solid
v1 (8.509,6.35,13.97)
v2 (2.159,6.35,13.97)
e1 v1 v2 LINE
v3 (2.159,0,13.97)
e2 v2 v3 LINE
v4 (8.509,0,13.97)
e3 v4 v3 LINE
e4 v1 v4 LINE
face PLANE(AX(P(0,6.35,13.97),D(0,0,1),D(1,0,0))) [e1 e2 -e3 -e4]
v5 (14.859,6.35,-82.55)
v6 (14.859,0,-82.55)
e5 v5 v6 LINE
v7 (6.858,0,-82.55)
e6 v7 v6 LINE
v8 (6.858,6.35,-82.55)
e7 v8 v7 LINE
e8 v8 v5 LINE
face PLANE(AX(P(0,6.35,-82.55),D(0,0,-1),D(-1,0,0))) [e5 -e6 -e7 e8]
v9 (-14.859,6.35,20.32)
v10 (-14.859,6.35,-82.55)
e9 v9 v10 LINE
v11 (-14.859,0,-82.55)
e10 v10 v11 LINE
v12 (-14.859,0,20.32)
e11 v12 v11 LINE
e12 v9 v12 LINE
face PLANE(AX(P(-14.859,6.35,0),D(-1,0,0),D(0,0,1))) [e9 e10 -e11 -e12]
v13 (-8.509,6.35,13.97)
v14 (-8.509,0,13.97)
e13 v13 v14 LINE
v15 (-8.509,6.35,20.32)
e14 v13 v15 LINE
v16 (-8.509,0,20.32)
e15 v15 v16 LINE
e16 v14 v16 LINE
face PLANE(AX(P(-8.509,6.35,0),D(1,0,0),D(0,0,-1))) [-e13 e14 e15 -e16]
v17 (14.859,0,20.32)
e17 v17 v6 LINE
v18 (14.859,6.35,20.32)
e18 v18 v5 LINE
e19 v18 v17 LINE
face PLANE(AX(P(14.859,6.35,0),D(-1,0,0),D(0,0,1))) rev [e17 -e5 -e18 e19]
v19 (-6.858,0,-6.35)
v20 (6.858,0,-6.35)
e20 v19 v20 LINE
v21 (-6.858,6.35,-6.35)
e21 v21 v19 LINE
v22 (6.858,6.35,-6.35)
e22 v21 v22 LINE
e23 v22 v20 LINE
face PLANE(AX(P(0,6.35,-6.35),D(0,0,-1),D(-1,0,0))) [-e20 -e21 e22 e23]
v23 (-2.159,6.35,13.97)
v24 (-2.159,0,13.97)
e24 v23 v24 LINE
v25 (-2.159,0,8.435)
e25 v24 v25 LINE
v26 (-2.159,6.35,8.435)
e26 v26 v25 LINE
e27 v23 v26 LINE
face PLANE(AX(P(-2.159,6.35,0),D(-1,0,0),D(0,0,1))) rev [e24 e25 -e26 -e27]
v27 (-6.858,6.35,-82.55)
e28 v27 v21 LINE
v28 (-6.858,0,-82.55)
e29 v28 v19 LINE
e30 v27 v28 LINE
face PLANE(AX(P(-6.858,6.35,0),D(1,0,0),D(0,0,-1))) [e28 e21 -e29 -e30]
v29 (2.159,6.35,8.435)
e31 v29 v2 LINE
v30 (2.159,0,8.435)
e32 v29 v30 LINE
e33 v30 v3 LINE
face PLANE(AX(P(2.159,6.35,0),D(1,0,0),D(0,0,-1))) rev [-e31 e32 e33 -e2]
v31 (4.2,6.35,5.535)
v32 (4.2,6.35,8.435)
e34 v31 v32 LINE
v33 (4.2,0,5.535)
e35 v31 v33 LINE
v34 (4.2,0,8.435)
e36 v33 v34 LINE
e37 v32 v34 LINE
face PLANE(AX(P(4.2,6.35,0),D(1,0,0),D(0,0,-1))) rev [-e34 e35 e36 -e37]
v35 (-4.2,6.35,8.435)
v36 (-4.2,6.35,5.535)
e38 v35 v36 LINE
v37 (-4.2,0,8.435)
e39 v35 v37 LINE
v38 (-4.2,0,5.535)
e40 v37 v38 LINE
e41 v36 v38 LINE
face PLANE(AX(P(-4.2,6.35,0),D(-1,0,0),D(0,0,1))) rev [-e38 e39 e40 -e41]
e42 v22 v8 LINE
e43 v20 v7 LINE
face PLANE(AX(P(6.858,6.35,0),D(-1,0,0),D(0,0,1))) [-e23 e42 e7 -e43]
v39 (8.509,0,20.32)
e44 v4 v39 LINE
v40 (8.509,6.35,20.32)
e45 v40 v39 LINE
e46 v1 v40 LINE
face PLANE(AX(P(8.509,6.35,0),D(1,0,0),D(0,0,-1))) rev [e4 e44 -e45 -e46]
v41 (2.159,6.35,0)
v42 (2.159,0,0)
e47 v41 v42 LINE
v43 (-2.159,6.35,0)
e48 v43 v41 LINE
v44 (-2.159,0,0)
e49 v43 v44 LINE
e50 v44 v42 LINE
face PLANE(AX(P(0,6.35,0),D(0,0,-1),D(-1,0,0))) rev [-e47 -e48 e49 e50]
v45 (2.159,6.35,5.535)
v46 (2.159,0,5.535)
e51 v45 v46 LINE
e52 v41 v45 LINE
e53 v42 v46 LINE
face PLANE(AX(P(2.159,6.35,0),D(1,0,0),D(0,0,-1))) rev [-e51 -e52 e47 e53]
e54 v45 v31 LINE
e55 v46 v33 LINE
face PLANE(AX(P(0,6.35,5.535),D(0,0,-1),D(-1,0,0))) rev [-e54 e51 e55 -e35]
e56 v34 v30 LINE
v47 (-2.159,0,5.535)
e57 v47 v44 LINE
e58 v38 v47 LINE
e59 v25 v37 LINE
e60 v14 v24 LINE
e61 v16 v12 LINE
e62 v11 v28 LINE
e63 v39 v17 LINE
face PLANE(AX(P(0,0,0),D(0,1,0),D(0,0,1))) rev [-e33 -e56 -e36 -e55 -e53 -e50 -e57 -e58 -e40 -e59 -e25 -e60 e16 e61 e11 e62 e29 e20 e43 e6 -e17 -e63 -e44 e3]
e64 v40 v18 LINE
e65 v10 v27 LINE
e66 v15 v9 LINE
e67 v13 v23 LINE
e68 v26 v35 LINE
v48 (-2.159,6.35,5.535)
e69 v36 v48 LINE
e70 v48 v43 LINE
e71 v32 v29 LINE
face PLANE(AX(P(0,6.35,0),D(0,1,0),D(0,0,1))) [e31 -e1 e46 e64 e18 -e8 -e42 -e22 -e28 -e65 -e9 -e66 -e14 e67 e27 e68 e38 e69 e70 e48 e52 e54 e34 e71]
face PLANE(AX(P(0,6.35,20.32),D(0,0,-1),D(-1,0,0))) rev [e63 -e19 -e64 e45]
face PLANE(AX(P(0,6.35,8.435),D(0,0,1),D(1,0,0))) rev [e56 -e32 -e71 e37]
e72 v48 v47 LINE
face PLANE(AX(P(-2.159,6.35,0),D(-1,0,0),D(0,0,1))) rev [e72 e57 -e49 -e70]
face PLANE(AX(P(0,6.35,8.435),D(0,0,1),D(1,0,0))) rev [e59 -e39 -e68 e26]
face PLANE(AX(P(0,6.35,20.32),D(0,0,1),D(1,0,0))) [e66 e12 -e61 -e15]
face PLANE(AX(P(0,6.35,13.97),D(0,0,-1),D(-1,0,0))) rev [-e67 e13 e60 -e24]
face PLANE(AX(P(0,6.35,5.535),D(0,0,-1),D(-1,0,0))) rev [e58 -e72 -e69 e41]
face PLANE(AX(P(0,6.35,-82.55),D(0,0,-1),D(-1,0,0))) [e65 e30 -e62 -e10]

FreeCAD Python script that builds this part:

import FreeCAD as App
import Part
import Sketcher
from FreeCAD import Vector
Q = App.Units.Quantity


def add_polygon(sketch, points):
    """Adds a closed chain of lines whose ends are joined by coincident constraints."""
    first, n = sketch.GeometryCount, len(points)
    for a, b in zip(points, points[1:] + points[:1]):
        sketch.addGeometry(Part.LineSegment(App.Vector(*a, 0), App.Vector(*b, 0)), False)
    for i in range(n):
        sketch.addConstraint(Sketcher.Constraint("Coincident", first + i, 2, first + (i + 1) % n, 1))

doc = App.newDocument("Part")
body = doc.addObject("PartDesign::Body", "Body")

sketch1 = body.newObject("Sketcher::SketchObject", "Sketch")
sketch1.AttachmentSupport = (doc.getObject("XZ_Plane"), [""])
sketch1.MapMode = "FlatFace"
add_polygon(sketch1, [(2.159, 13.97), (8.509, 13.97), (8.509, 20.32), (14.859, 20.32), (14.859, -82.55), (6.858, -82.55), (6.858, -6.35), (-6.858, -6.35), (-6.858, -82.55), (-14.859, -82.55), (-14.859, 20.32), (-8.509, 20.32), (-8.509, 13.97), (-2.159, 13.97), (-2.159, 8.435), (-4.2, 8.435), (-4.2, 5.535), (-2.159, 5.535), (-2.159, 0), (2.159, 0), (2.159, 5.535), (4.2, 5.535), (4.2, 8.435), (2.159, 8.435)])
sketch1.addConstraint([
    Sketcher.Constraint("Horizontal", 0),
    Sketcher.Constraint("Vertical", 1),
    Sketcher.Constraint("Horizontal", 2),
    Sketcher.Constraint("Vertical", 3),
    Sketcher.Constraint("Horizontal", 4),
    Sketcher.Constraint("Vertical", 5),
    Sketcher.Constraint("Horizontal", 6),
    Sketcher.Constraint("Vertical", 7),
    Sketcher.Constraint("Horizontal", 8),
    Sketcher.Constraint("Vertical", 9),
    Sketcher.Constraint("Horizontal", 10),
    Sketcher.Constraint("Vertical", 11),
    Sketcher.Constraint("Horizontal", 12),
    Sketcher.Constraint("Vertical", 13),
    Sketcher.Constraint("Horizontal", 14),
    Sketcher.Constraint("Vertical", 15),
    Sketcher.Constraint("Horizontal", 16),
    Sketcher.Constraint("Vertical", 17),
    Sketcher.Constraint("Horizontal", 18),
    Sketcher.Constraint("Vertical", 19),
    Sketcher.Constraint("Horizontal", 20),
    Sketcher.Constraint("Vertical", 21),
    Sketcher.Constraint("Horizontal", 22),
    Sketcher.Constraint("Vertical", 23),
    Sketcher.Constraint("Symmetric", 17, 2, 18, 2, -1, 1),
    Sketcher.Constraint("Symmetric", 4, 2, 7, 2, -2),
    Sketcher.Constraint("Symmetric", 2, 2, 9, 2, -2),
    Sketcher.Constraint("Symmetric", 0, 2, 11, 2, -2),
    Sketcher.Constraint("Symmetric", 15, 2, 20, 2, -2),
    Sketcher.Constraint("Symmetric", 13, 2, 22, 2, -2),
    Sketcher.Constraint("Vertical", 13, 2, 16, 2),
    Sketcher.Constraint("Equal", 0, 2),
    Sketcher.Constraint("Equal", 12, 1),
    Sketcher.Constraint("Equal", 13, 17),
    Sketcher.Constraint("DistanceY", 5, 1, 5, 2, Q("3 in")),
    Sketcher.Constraint("DistanceX", 0, 1, 0, 2, Q("0.25 in")),
    Sketcher.Constraint("DistanceX", 6, 2, 6, 1, Q("0.54 in")),
    Sketcher.Constraint("DistanceX", 18, 1, 18, 2, Q("0.17 in")),
    Sketcher.Constraint("DistanceY", 3, 2, 3, 1, Q("4.05 in")),
    Sketcher.Constraint("DistanceY", -1, 1, 1, 2, Q("0.8 in")),
    Sketcher.Constraint("DistanceX", 14, 2, 14, 1, Q("2.041 mm")),
    Sketcher.Constraint("DistanceY", 13, 2, 13, 1, Q("5.535 mm")),
])
pad1 = body.newObject("PartDesign::Pad", "Pad")
pad1.Profile = sketch1
pad1.Length = Q("0.25 in")
pad1.Reversed = True

doc.recompute()
